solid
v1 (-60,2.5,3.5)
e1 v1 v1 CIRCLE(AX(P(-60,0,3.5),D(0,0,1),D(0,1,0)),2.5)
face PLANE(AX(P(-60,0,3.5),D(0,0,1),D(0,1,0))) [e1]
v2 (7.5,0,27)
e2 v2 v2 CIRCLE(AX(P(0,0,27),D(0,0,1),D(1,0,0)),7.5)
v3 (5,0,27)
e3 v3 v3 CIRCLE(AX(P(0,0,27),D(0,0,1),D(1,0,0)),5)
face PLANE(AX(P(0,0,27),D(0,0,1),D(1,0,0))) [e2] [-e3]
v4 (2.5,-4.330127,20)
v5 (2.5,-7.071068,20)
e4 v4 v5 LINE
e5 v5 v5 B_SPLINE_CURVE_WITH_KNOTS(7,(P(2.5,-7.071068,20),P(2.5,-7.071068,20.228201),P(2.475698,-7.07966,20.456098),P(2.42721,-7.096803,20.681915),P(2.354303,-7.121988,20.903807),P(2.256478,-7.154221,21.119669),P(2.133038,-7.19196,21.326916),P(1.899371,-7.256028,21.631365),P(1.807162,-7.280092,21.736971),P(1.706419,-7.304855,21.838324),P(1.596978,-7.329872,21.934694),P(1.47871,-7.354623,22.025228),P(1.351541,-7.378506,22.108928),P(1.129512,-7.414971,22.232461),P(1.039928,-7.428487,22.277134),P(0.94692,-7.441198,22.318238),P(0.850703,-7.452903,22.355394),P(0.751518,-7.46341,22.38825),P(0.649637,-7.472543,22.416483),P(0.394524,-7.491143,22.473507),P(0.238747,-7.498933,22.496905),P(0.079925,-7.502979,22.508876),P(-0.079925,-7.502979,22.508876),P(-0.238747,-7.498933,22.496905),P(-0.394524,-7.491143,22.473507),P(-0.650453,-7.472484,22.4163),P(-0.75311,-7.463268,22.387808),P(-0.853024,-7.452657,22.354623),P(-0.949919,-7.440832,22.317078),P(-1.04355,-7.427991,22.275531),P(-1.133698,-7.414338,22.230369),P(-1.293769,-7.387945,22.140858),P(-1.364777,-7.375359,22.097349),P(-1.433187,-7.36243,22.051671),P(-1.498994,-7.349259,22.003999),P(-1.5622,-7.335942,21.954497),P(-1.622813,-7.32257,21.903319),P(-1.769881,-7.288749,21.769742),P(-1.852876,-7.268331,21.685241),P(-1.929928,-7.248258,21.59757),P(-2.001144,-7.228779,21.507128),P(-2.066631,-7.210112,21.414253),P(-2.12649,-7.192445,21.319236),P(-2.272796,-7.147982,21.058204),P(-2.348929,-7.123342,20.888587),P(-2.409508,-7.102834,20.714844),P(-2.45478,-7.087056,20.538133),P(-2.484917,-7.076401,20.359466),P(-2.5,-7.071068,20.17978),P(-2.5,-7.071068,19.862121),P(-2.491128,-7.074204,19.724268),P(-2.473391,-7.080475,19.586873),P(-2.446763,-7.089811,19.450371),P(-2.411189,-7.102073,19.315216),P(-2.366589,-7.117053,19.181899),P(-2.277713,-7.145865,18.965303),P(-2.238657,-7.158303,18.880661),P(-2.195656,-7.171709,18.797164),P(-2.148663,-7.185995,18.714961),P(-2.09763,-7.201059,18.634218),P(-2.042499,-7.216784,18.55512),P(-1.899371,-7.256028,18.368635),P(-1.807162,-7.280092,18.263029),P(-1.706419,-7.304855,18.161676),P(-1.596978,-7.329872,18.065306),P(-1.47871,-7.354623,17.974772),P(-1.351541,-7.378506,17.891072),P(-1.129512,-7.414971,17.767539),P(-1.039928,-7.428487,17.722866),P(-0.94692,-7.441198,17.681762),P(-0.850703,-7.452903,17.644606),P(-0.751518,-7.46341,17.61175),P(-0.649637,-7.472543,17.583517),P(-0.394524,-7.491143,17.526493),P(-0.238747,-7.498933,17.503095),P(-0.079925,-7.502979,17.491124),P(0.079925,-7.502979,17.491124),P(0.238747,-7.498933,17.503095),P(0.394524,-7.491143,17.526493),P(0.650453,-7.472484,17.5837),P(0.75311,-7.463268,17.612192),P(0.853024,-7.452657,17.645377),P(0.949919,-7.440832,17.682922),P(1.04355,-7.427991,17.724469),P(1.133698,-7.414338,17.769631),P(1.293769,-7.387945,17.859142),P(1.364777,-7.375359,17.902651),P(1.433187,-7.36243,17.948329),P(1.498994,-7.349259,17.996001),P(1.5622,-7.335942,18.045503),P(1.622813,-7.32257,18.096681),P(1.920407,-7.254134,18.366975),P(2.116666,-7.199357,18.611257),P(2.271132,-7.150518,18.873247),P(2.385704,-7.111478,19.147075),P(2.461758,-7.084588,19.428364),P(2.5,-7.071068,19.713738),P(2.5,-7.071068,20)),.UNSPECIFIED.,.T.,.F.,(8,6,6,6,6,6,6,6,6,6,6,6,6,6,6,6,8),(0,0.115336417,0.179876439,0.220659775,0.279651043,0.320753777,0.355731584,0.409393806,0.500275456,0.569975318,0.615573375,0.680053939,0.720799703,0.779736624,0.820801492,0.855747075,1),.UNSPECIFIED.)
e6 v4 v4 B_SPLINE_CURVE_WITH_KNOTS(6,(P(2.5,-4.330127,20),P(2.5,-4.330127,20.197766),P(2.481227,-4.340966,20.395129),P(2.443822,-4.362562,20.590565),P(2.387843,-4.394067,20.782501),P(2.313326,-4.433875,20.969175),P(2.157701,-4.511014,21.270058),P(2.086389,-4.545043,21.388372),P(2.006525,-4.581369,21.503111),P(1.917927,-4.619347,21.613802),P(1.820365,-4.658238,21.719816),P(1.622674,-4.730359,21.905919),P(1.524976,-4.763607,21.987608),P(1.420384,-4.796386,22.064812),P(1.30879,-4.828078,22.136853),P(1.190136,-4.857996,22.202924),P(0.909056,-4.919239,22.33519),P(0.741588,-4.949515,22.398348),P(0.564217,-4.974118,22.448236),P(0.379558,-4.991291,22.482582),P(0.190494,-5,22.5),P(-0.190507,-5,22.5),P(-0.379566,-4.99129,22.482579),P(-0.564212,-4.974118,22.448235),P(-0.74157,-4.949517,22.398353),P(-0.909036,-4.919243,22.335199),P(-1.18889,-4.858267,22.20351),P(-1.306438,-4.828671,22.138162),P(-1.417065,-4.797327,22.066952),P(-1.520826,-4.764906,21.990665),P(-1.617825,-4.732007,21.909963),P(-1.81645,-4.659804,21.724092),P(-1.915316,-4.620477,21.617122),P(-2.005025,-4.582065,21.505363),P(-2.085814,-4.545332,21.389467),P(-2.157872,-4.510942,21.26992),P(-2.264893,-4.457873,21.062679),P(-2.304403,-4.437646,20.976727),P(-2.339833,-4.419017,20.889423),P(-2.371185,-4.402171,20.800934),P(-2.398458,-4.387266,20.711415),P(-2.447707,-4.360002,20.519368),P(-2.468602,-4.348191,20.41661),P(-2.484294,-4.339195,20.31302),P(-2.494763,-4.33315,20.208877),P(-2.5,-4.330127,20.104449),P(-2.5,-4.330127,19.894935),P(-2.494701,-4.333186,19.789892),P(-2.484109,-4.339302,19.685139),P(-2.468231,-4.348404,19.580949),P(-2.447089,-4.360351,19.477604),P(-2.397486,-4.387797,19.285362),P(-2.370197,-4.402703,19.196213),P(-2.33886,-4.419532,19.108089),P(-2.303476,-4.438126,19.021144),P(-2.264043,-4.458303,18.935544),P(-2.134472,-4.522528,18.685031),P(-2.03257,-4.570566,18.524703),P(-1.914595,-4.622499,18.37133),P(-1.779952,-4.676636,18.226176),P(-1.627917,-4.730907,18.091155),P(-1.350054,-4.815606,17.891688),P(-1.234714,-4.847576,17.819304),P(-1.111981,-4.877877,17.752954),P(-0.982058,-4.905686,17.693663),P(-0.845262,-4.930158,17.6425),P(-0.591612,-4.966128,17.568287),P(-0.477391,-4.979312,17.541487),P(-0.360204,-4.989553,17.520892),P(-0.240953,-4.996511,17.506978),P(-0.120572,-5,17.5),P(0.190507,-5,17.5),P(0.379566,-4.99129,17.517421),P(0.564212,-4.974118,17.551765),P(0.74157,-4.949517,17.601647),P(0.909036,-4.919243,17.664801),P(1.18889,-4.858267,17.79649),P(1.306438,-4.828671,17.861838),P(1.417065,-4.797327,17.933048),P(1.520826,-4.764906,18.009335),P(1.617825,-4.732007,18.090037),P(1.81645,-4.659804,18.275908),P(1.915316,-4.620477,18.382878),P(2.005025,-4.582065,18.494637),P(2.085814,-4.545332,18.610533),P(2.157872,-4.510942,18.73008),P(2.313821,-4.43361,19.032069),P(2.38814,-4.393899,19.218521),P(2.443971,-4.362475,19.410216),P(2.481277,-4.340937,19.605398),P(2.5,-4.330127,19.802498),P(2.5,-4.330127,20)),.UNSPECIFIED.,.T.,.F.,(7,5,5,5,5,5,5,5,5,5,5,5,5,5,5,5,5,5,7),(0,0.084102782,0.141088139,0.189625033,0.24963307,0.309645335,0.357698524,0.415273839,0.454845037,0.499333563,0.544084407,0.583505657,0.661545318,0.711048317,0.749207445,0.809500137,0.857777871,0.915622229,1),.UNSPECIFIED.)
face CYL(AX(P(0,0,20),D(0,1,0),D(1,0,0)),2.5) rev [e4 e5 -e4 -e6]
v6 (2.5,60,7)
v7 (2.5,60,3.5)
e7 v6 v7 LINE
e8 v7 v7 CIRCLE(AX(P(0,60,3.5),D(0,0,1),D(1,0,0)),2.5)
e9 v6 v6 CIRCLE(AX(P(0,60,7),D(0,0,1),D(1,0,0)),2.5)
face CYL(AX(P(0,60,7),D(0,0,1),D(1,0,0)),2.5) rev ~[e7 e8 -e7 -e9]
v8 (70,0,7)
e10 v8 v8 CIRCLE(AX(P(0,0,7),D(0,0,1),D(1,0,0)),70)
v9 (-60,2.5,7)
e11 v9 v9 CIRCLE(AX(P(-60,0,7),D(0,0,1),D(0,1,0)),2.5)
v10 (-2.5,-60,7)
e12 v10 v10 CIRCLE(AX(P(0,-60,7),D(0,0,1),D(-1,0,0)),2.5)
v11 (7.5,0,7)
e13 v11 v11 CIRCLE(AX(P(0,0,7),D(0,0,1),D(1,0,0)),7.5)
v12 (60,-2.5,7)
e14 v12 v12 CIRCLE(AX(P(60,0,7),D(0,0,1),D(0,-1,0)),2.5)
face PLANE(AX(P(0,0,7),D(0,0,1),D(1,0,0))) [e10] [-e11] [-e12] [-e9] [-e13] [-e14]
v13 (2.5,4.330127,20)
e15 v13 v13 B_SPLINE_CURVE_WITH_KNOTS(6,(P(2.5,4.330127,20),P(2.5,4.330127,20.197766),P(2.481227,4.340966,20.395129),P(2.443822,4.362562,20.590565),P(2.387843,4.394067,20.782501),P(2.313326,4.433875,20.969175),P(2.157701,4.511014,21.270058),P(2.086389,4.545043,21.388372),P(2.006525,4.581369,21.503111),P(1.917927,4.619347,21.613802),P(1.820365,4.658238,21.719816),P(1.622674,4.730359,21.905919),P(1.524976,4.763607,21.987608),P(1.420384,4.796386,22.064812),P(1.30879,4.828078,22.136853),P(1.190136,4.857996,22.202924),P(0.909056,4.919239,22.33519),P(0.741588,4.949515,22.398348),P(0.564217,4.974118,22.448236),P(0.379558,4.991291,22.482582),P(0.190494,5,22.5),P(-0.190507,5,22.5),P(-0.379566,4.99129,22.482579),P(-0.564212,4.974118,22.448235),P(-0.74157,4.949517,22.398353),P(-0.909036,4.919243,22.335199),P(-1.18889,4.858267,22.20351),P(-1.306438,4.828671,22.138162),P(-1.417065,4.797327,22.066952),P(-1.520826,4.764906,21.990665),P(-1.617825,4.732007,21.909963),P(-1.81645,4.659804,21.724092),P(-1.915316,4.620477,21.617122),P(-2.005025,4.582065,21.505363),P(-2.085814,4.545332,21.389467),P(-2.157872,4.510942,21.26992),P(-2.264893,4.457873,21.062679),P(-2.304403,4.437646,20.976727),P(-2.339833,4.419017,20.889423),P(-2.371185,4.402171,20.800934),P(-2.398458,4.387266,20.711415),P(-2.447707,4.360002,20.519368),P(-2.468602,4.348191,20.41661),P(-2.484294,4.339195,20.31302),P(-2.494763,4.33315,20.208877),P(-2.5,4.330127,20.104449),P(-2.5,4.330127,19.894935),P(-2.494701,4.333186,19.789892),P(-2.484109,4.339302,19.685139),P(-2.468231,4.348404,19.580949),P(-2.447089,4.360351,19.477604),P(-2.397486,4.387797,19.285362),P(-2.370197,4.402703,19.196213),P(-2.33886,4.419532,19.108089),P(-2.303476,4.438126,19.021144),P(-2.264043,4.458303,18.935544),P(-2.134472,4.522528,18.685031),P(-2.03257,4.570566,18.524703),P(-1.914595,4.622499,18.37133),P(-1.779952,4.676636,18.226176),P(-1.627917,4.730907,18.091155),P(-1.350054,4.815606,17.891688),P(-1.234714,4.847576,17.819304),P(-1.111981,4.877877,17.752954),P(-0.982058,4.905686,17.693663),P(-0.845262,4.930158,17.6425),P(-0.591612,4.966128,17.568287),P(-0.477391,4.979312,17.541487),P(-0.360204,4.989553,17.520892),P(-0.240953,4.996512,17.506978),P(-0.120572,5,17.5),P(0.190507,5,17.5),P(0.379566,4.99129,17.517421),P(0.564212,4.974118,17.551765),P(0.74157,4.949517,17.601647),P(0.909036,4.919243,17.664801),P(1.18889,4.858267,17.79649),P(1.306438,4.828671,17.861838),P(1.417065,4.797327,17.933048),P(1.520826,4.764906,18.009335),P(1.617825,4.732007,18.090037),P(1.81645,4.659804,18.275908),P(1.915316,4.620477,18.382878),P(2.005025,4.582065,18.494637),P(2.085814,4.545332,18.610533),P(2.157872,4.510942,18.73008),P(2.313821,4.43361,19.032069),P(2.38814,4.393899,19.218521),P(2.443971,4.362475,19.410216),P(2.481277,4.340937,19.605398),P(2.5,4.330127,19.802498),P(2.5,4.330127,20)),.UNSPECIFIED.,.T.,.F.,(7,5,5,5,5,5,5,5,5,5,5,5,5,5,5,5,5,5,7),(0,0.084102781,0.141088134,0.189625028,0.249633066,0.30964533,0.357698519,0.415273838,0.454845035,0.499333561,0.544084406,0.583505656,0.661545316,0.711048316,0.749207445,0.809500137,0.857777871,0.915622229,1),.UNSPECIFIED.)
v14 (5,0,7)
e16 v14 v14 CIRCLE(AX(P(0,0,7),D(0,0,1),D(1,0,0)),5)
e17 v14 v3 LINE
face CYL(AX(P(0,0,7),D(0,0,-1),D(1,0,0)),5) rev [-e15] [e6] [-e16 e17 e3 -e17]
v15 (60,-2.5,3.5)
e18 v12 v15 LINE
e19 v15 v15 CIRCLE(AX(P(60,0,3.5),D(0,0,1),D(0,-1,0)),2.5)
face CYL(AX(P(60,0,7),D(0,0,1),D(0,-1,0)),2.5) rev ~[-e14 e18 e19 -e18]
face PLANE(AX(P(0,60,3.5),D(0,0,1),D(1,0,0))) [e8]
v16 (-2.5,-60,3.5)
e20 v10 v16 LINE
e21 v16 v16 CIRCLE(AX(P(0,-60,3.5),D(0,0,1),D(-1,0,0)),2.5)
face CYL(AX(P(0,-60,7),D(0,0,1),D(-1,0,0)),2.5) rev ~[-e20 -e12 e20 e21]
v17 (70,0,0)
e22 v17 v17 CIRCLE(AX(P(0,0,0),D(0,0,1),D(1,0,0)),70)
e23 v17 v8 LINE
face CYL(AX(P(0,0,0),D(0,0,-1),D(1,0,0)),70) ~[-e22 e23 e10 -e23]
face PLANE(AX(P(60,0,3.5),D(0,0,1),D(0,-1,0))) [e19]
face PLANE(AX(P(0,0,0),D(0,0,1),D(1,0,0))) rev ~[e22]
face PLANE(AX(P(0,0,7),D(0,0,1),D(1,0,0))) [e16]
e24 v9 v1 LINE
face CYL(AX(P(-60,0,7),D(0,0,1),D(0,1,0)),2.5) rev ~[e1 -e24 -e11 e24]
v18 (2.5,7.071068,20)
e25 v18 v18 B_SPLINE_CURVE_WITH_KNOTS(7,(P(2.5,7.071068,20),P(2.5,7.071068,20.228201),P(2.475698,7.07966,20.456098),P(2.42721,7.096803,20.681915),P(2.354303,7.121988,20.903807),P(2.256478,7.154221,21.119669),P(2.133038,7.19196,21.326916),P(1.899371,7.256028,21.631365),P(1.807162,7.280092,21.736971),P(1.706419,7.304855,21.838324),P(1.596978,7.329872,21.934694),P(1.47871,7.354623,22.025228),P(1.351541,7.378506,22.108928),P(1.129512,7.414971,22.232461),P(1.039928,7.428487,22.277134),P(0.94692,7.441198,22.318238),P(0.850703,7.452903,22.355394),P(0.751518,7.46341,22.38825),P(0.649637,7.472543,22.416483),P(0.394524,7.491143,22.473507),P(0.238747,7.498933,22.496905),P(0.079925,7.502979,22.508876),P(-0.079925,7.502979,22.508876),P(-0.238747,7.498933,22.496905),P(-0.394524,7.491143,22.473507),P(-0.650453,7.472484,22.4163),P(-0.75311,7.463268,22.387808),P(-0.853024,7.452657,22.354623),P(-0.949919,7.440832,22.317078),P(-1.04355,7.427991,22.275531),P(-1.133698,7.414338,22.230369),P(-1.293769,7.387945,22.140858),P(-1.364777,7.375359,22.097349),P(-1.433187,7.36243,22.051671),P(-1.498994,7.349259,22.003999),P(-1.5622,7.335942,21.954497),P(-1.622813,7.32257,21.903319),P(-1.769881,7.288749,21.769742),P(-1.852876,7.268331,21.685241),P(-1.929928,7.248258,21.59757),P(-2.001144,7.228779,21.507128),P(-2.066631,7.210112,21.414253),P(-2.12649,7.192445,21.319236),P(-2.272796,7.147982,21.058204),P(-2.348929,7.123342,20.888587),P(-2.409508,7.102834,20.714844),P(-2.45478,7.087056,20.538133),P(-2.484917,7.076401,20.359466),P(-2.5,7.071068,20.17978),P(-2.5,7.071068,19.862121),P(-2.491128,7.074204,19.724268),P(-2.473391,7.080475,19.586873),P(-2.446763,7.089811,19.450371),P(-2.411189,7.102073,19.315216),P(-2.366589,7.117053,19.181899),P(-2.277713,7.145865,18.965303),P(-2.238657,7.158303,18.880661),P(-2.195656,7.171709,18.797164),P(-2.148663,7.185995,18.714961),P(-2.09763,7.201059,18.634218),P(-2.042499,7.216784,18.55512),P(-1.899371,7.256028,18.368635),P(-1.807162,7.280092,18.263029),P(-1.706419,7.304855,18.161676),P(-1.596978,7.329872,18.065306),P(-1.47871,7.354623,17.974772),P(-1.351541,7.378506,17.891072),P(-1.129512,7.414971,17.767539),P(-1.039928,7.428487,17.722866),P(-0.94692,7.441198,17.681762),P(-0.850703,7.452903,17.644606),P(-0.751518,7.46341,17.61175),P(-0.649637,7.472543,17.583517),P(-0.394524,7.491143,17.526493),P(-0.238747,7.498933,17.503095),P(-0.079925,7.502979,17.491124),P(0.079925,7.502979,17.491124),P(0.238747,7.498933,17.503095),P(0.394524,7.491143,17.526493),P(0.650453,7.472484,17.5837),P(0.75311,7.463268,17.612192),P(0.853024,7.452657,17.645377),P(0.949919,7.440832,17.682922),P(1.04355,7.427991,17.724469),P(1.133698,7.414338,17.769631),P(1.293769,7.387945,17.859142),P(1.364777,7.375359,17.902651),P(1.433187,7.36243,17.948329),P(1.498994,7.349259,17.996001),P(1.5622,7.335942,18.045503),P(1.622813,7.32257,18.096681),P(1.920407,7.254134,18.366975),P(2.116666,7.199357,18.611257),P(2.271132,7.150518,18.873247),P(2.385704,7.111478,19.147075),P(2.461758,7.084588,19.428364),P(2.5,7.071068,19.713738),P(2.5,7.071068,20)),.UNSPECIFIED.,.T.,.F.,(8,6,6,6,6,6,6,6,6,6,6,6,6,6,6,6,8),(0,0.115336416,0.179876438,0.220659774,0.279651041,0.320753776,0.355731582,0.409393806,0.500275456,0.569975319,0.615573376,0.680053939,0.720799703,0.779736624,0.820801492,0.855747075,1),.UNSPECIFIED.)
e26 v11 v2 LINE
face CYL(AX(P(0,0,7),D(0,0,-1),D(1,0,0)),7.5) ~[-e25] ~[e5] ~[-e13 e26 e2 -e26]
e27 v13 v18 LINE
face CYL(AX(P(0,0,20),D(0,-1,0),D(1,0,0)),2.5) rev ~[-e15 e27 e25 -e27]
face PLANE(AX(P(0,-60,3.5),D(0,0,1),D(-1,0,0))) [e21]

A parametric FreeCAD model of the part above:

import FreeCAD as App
import Part
import Sketcher

doc = App.newDocument("Part")
body = doc.addObject("PartDesign::Body", "Body")

sketch1 = body.newObject("Sketcher::SketchObject", "Sketch")
sketch1.AttachmentSupport = (doc.getObject("XY_Plane"), [""])
sketch1.MapMode = "FlatFace"
sketch1.addGeometry(Part.Circle(App.Vector(0, 0, 0), App.Vector(0, 0, 1), 70), False)
sketch1.addConstraint([
    Sketcher.Constraint("Coincident", 0, 3, -1, 1),
    Sketcher.Constraint("Diameter", 0, 140.0),
])
pad1 = body.newObject("PartDesign::Pad", "Pad")
pad1.Profile = sketch1
pad1.Length = 7

sketch2 = body.newObject("Sketcher::SketchObject", "Sketch001")
sketch2.AttachmentSupport = (doc.getObject("XY_Plane"), [""])
sketch2.MapMode = "FlatFace"
sketch2.AttachmentOffset = App.Placement(App.Vector(0, 0, 7), App.Rotation())
sketch2.addGeometry(Part.Circle(App.Vector(0, 60, 0), App.Vector(0, 0, 1), 2.5), False)
sketch2.addConstraint([
    Sketcher.Constraint("PointOnObject", 0, 3, -2),
    Sketcher.Constraint("Diameter", 0, 5.0),
    Sketcher.Constraint("DistanceY", -1, 1, 0, 3, 60.0),
])
pocket1 = body.newObject("PartDesign::Pocket", "Pocket")
pocket1.Profile = sketch2
pocket1.Length = 3.5
doc.recompute()

polarpattern = body.newObject("PartDesign::PolarPattern", "PolarPattern")
polarpattern.Originals = [pocket1]
polarpattern.Axis = (doc.getObject("Z_Axis"), [""])
polarpattern.Angle = 360
polarpattern.Occurrences = 4
body.Tip = polarpattern

sketch3 = body.newObject("Sketcher::SketchObject", "Sketch002")
sketch3.AttachmentSupport = (doc.getObject("XY_Plane"), [""])
sketch3.MapMode = "FlatFace"
sketch3.AttachmentOffset = App.Placement(App.Vector(0, 0, 7), App.Rotation())
sketch3.addGeometry([
    Part.Circle(App.Vector(0, 0, 0), App.Vector(0, 0, 1), 8),
    Part.Circle(App.Vector(0, 0, 0), App.Vector(0, 0, 1), 5),
], False)
sketch3.addConstraint([
    Sketcher.Constraint("Coincident", 0, 3, -1, 1),
    Sketcher.Constraint("Coincident", 1, 3, -1, 1),
    Sketcher.Constraint("Diameter", 0, 15.0),
    Sketcher.Constraint("Diameter", 1, 10.0),
])
pad2 = body.newObject("PartDesign::Pad", "Pad001")
pad2.Profile = sketch3
pad2.Length = 20

sketch4 = body.newObject("Sketcher::SketchObject", "Sketch003")
sketch4.AttachmentSupport = (doc.getObject("XZ_Plane"), [""])
sketch4.MapMode = "FlatFace"
sketch4.addGeometry(Part.Circle(App.Vector(0, 20, 0), App.Vector(0, 0, 1), 2.5), False)
sketch4.addConstraint([
    Sketcher.Constraint("PointOnObject", 0, 3, -2),
    Sketcher.Constraint("Diameter", 0, 5.0),
    Sketcher.Constraint("DistanceY", -1, 1, 0, 3, 20.0),
])
pocket2 = body.newObject("PartDesign::Pocket", "Pocket001")
pocket2.Profile = sketch4
pocket2.Type = "ThroughAll"
pocket2.Midplane = True

doc.recompute()
